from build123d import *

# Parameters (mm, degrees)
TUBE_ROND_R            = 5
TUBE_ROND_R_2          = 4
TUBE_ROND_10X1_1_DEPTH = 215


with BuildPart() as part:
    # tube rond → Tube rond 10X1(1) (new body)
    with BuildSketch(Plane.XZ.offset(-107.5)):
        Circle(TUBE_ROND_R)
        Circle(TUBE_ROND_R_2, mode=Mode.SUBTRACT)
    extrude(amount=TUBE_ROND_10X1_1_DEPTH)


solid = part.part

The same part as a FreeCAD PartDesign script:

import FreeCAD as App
import Part
import Sketcher

V = App.Vector

doc = App.newDocument("Part")
body = doc.addObject("PartDesign::Body", "Body")

sketch1 = doc.addObject("Sketcher::SketchObject", "Sketch")
body.addObject(sketch1)
sketch1.AttachmentSupport = (doc.XZ_Plane, [""])
sketch1.MapMode = "FlatFace"
sketch1.AttachmentOffset = App.Placement(V(0, 0, -107.5), App.Rotation())
sketch1.addGeometry(Part.Circle(V(0, 0, 0), V(0, 0, 1), 5), False)
sketch1.addGeometry(Part.Circle(V(0, 0, 0), V(0, 0, 1), 4), False)
sketch1.addConstraint(Sketcher.Constraint("Coincident", 0, 3, -1, 1))
sketch1.addConstraint(Sketcher.Constraint("Coincident", 1, 3, -1, 1))
sketch1.addConstraint(Sketcher.Constraint("Diameter", 0, 10.0))
sketch1.addConstraint(Sketcher.Constraint("Diameter", 1, 8.0))
pad1 = doc.addObject("PartDesign::Pad", "Pad")
body.addObject(pad1)
pad1.Profile = sketch1
pad1.Length = 215

doc.recompute()
